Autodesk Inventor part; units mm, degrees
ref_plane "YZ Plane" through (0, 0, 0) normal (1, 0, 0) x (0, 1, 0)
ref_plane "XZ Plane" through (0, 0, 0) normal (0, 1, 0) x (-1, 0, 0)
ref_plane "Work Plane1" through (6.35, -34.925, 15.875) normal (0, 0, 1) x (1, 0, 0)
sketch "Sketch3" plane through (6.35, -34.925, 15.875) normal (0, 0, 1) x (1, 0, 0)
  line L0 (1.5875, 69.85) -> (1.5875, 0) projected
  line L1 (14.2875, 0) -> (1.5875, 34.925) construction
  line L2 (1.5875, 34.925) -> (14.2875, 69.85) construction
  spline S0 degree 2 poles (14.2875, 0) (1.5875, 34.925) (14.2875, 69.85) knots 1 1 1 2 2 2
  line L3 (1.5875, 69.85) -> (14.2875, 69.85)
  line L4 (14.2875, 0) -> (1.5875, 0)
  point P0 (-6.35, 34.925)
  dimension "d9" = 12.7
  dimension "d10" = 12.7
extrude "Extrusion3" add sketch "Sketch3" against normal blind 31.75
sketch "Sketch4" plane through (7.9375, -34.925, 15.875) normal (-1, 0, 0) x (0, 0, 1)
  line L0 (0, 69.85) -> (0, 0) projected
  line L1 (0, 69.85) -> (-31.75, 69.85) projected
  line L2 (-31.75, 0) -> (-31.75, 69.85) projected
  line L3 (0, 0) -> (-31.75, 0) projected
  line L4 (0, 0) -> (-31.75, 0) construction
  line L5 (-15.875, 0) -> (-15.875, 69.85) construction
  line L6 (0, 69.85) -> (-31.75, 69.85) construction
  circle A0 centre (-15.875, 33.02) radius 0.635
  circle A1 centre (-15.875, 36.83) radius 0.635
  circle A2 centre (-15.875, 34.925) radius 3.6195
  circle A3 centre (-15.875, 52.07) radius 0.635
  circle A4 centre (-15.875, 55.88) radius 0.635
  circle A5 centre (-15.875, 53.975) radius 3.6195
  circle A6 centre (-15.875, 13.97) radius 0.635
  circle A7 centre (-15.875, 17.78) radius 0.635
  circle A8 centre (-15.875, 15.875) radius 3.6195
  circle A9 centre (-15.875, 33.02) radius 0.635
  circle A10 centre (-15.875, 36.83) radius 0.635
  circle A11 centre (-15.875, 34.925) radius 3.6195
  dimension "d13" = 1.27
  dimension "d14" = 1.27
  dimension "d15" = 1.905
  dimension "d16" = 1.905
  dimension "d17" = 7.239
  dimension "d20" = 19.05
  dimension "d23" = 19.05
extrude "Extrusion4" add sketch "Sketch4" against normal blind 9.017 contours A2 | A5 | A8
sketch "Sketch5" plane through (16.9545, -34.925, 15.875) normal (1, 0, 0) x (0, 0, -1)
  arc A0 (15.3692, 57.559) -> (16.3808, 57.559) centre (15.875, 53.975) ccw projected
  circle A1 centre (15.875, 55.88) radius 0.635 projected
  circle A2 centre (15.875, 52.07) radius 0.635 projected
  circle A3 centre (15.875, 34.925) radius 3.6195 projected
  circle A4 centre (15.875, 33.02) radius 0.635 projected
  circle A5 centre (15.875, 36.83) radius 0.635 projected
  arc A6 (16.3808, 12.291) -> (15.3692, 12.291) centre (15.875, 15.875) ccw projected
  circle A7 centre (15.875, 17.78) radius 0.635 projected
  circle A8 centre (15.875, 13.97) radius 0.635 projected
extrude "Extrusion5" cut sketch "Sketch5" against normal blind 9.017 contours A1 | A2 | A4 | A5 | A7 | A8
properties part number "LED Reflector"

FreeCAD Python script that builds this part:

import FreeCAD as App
import Part
import Sketcher
Q = App.Units.Quantity

doc = App.newDocument("Part")
body = doc.addObject("PartDesign::Body", "Body")

# Sketch on XY plane
sketch1 = body.newObject("Sketcher::SketchObject", "Sketch")
sketch1.AttachmentSupport = (doc.getObject("XY_Plane"), [""])
sketch1.MapMode = "FlatFace"
sketch1.AttachmentOffset = App.Placement(App.Vector(0, 0, 0.625 * 25.4), App.Rotation())
sketch1.addGeometry([
    Part.LineSegment(App.Vector(20.6375, 34.925, 0), App.Vector(7.9375, 34.925, 0)),
    Part.LineSegment(App.Vector(7.9375, 34.925, 0), App.Vector(7.9375, -34.925, 0)),
    Part.LineSegment(App.Vector(7.9375, -34.925, 0), App.Vector(20.6375, -34.925, 0)),
    Part.BSplineCurve([App.Vector(20.6375, -34.925, 0), App.Vector(7.9375, 0, 0), App.Vector(20.6375, 34.925, 0)], [3, 3], [1, 2], False, 2, [1, 1, 1], False),
], False)
sketch1.addConstraint([
    Sketcher.Constraint("Block", 3),
    Sketcher.Constraint("Coincident", 0, 2, 1, 1),
    Sketcher.Constraint("Coincident", 1, 2, 2, 1),
    Sketcher.Constraint("Coincident", 2, 2, 3, 1),
    Sketcher.Constraint("Coincident", 3, 2, 0, 1),
    Sketcher.Constraint("Horizontal", 0),
    Sketcher.Constraint("Vertical", 1),
    Sketcher.Constraint("Horizontal", 2),
    Sketcher.Constraint("DistanceX", 0, 2, 0, 1, Q("0.5 in")),
])
pad1 = body.newObject("PartDesign::Pad", "Pad")
pad1.Profile = sketch1
pad1.Length = Q("1.25 in")
pad1.Reversed = True

# Sketch on YZ plane
sketch2 = body.newObject("Sketcher::SketchObject", "Sketch001")
sketch2.AttachmentSupport = (doc.getObject("YZ_Plane"), [""])
sketch2.MapMode = "FlatFace"
sketch2.AttachmentOffset = App.Placement(App.Vector(0, 0, 0.3125 * 25.4), App.Rotation())
sketch2.addGeometry([
    Part.Circle(App.Vector(0, 0, 0), App.Vector(0, 0, 1), 3.6),  # 0
    Part.Circle(App.Vector(-1.9, 0, 0), App.Vector(0, 0, 1), 0.6),  # 1
    Part.Circle(App.Vector(1.9, 0, 0), App.Vector(0, 0, 1), 0.6),  # 2
    Part.Circle(App.Vector(19.1, 0, 0), App.Vector(0, 0, 1), 3.6),  # 3
    Part.Circle(App.Vector(17.1, 0, 0), App.Vector(0, 0, 1), 0.6),  # 4
    Part.Circle(App.Vector(21, 0, 0), App.Vector(0, 0, 1), 0.6),  # 5
    Part.Circle(App.Vector(-19.1, 0, 0), App.Vector(0, 0, 1), 3.6),  # 6
    Part.Circle(App.Vector(-21, 0, 0), App.Vector(0, 0, 1), 0.6),  # 7
    Part.Circle(App.Vector(-17.1, 0, 0), App.Vector(0, 0, 1), 0.6),  # 8
], False)
sketch2.addConstraint([
    Sketcher.Constraint("Coincident", 0, 3, -1, 1),
    Sketcher.Constraint("Equal", 1, 2),
    Sketcher.Constraint("Equal", 0, 3),
    Sketcher.Constraint("Equal", 2, 4),
    Sketcher.Constraint("Equal", 4, 5),
    Sketcher.Constraint("Equal", 3, 6),
    Sketcher.Constraint("Equal", 5, 7),
    Sketcher.Constraint("Equal", 7, 8),
    Sketcher.Constraint("Symmetric", 1, 3, 2, 3, -1, 1),
    Sketcher.Constraint("Symmetric", 3, 3, 6, 3, -1, 1),
    Sketcher.Constraint("Symmetric", 5, 3, 7, 3, -1, 1),
    Sketcher.Constraint("Symmetric", 4, 3, 8, 3, -1, 1),
    Sketcher.Constraint("PointOnObject", 1, 3, -1),
    Sketcher.Constraint("PointOnObject", 3, 3, -1),
    Sketcher.Constraint("PointOnObject", 4, 3, -1),
    Sketcher.Constraint("PointOnObject", 5, 3, -1),
    Sketcher.Constraint("Diameter", 1, Q("0.05 in")),
    Sketcher.Constraint("Diameter", 0, Q("0.285 in")),
    Sketcher.Constraint("DistanceX", -1, 1, 3, 3, Q("0.75 in")),
    Sketcher.Constraint("DistanceX", 1, 3, 4, 3, Q("0.75 in")),
    Sketcher.Constraint("DistanceX", 2, 3, 5, 3, Q("0.75 in")),
    Sketcher.Constraint("DistanceX", 1, 3, -1, 1, Q("0.075 in")),
])
pad2 = body.newObject("PartDesign::Pad", "Pad001")
pad2.Profile = sketch2
pad2.Length = Q("0.355 in")

# Sketch on YZ plane
sketch3 = body.newObject("Sketcher::SketchObject", "Sketch002")
sketch3.AttachmentSupport = (doc.getObject("YZ_Plane"), [""])
sketch3.MapMode = "FlatFace"
sketch3.AttachmentOffset = App.Placement(App.Vector(0, 0, 0.6675 * 25.4), App.Rotation())
sketch3.addGeometry([
    Part.Circle(App.Vector(21, 0, 0), App.Vector(0, 0, 1), 0.6),  # 0
    Part.Circle(App.Vector(17.1, 0, 0), App.Vector(0, 0, 1), 0.6),  # 1
    Part.Circle(App.Vector(-1.9, 0, 0), App.Vector(0, 0, 1), 0.6),  # 2
    Part.Circle(App.Vector(1.9, 0, 0), App.Vector(0, 0, 1), 0.6),  # 3
    Part.Circle(App.Vector(-17.1, 0, 0), App.Vector(0, 0, 1), 0.6),  # 4
    Part.Circle(App.Vector(-21, 0, 0), App.Vector(0, 0, 1), 0.6),  # 5
], False)
sketch3.addConstraint([
    Sketcher.Constraint("Equal", 0, 1),
    Sketcher.Constraint("Equal", 1, 2),
    Sketcher.Constraint("Equal", 2, 3),
    Sketcher.Constraint("Equal", 3, 4),
    Sketcher.Constraint("Equal", 4, 5),
    Sketcher.Constraint("Symmetric", 2, 3, 3, 3, -1, 1),
    Sketcher.Constraint("Symmetric", 1, 3, 4, 3, -1, 1),
    Sketcher.Constraint("Symmetric", 0, 3, 5, 3, -1, 1),
    Sketcher.Constraint("PointOnObject", 0, 3, -1),
    Sketcher.Constraint("PointOnObject", 1, 3, -1),
    Sketcher.Constraint("PointOnObject", 2, 3, -1),
    Sketcher.Constraint("Diameter", 0, Q("0.05 in")),
    Sketcher.Constraint("DistanceX", 2, 3, 0, 3, Q("0.9 in")),
    Sketcher.Constraint("DistanceX", 3, 3, 1, 3, Q("0.6 in")),
    Sketcher.Constraint("DistanceX", 1, 3, 0, 3, Q("0.15 in")),
])
pocket1 = body.newObject("PartDesign::Pocket", "Pocket")
pocket1.Profile = sketch3
pocket1.Length = Q("0.355 in")

doc.recompute()
